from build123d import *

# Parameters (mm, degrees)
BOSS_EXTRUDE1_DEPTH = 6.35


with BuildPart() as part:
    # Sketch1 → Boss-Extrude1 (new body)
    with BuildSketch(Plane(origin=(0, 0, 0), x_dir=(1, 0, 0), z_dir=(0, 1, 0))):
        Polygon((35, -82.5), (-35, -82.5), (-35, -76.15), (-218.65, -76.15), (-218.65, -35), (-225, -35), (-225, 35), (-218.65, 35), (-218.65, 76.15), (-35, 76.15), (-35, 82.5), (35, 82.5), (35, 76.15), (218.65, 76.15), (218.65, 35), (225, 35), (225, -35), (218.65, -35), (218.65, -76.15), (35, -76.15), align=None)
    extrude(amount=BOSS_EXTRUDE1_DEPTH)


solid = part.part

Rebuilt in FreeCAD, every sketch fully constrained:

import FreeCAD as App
import Part
import Sketcher


def add_polygon(sketch, points):
    """Adds a closed chain of lines whose ends are joined by coincident constraints."""
    first, n = sketch.GeometryCount, len(points)
    for a, b in zip(points, points[1:] + points[:1]):
        sketch.addGeometry(Part.LineSegment(App.Vector(*a, 0), App.Vector(*b, 0)), False)
    for i in range(n):
        sketch.addConstraint(Sketcher.Constraint("Coincident", first + i, 2, first + (i + 1) % n, 1))

doc = App.newDocument("Part")
params = doc.addObject("Spreadsheet::Sheet", "Params")
for row, (alias, value) in enumerate([
    ("sketch1_width", "70 mm"),
    ("sketch1_width2", "183.65 mm"),
    ("pad1_length", "6.35 mm"),
], start=1):
    params.set(f"A{row}", alias)
    params.set(f"B{row}", "=" + value)
    params.setAlias(f"B{row}", alias)

body = doc.addObject("PartDesign::Body", "Body")

sketch1 = body.newObject("Sketcher::SketchObject", "Sketch")
sketch1.AttachmentSupport = (doc.getObject("XZ_Plane"), [""])
sketch1.MapMode = "FlatFace"
add_polygon(sketch1, [(-35, 82), (35, 82), (35, 76), (219, 76), (219, 35), (225, 35), (225, -35), (219, -35), (219, -76), (35, -76), (35, -82), (-35, -82), (-35, -76), (-219, -76), (-219, -35), (-225, -35), (-225, 35), (-219, 35), (-219, 76), (-35, 76)])
sketch1.addConstraint(Sketcher.Constraint("Horizontal", 0))
sketch1.addConstraint(Sketcher.Constraint("Vertical", 1))
sketch1.addConstraint(Sketcher.Constraint("Horizontal", 2))
sketch1.addConstraint(Sketcher.Constraint("Vertical", 3))
sketch1.addConstraint(Sketcher.Constraint("Horizontal", 4))
sketch1.addConstraint(Sketcher.Constraint("Vertical", 5))
sketch1.addConstraint(Sketcher.Constraint("Horizontal", 6))
sketch1.addConstraint(Sketcher.Constraint("Vertical", 7))
sketch1.addConstraint(Sketcher.Constraint("Horizontal", 8))
sketch1.addConstraint(Sketcher.Constraint("Vertical", 9))
sketch1.addConstraint(Sketcher.Constraint("Horizontal", 10))
sketch1.addConstraint(Sketcher.Constraint("Vertical", 11))
sketch1.addConstraint(Sketcher.Constraint("Horizontal", 12))
sketch1.addConstraint(Sketcher.Constraint("Vertical", 13))
sketch1.addConstraint(Sketcher.Constraint("Horizontal", 14))
sketch1.addConstraint(Sketcher.Constraint("Vertical", 15))
sketch1.addConstraint(Sketcher.Constraint("Horizontal", 16))
sketch1.addConstraint(Sketcher.Constraint("Vertical", 17))
sketch1.addConstraint(Sketcher.Constraint("Horizontal", 18))
sketch1.addConstraint(Sketcher.Constraint("Vertical", 19))
sketch1.addConstraint(Sketcher.Constraint("Symmetric", 0, 2, 10, 2, -1, 1))
sketch1.addConstraint(Sketcher.Constraint("Symmetric", 2, 2, 12, 2, -1, 1))
sketch1.addConstraint(Sketcher.Constraint("Symmetric", 4, 2, 14, 2, -1, 1))
sketch1.addConstraint(Sketcher.Constraint("Symmetric", 6, 2, 16, 2, -1, 1))
sketch1.addConstraint(Sketcher.Constraint("Symmetric", 8, 2, 18, 2, -1, 1))
sketch1.addConstraint(Sketcher.Constraint("Symmetric", 8, 2, 11, 2, -2))
sketch1.addConstraint(Sketcher.Constraint("Symmetric", 6, 2, 13, 2, -2))
sketch1.addConstraint(Sketcher.Constraint("Equal", 16, 1))
sketch1.addConstraint(Sketcher.Constraint("Equal", 10, 5))
sketch1.addConstraint(Sketcher.Constraint("DistanceX", 0, 1, 0, 2, 70.0))
sketch1.addConstraint(Sketcher.Constraint("DistanceX", -1, 1, 4, 2, 225.0))
sketch1.addConstraint(Sketcher.Constraint("DistanceY", 9, 2, 0, 2, 165.0))
sketch1.addConstraint(Sketcher.Constraint("DistanceX", 2, 1, 2, 2, 183.65))
sketch1.setExpression("Constraints[49]", "Params.sketch1_width")
sketch1.setExpression("Constraints[52]", "Params.sketch1_width2")
pad1 = body.newObject("PartDesign::Pad", "Pad")
pad1.Profile = sketch1
pad1.setExpression("Length", "Params.pad1_length")
pad1.Reversed = True

doc.recompute()
